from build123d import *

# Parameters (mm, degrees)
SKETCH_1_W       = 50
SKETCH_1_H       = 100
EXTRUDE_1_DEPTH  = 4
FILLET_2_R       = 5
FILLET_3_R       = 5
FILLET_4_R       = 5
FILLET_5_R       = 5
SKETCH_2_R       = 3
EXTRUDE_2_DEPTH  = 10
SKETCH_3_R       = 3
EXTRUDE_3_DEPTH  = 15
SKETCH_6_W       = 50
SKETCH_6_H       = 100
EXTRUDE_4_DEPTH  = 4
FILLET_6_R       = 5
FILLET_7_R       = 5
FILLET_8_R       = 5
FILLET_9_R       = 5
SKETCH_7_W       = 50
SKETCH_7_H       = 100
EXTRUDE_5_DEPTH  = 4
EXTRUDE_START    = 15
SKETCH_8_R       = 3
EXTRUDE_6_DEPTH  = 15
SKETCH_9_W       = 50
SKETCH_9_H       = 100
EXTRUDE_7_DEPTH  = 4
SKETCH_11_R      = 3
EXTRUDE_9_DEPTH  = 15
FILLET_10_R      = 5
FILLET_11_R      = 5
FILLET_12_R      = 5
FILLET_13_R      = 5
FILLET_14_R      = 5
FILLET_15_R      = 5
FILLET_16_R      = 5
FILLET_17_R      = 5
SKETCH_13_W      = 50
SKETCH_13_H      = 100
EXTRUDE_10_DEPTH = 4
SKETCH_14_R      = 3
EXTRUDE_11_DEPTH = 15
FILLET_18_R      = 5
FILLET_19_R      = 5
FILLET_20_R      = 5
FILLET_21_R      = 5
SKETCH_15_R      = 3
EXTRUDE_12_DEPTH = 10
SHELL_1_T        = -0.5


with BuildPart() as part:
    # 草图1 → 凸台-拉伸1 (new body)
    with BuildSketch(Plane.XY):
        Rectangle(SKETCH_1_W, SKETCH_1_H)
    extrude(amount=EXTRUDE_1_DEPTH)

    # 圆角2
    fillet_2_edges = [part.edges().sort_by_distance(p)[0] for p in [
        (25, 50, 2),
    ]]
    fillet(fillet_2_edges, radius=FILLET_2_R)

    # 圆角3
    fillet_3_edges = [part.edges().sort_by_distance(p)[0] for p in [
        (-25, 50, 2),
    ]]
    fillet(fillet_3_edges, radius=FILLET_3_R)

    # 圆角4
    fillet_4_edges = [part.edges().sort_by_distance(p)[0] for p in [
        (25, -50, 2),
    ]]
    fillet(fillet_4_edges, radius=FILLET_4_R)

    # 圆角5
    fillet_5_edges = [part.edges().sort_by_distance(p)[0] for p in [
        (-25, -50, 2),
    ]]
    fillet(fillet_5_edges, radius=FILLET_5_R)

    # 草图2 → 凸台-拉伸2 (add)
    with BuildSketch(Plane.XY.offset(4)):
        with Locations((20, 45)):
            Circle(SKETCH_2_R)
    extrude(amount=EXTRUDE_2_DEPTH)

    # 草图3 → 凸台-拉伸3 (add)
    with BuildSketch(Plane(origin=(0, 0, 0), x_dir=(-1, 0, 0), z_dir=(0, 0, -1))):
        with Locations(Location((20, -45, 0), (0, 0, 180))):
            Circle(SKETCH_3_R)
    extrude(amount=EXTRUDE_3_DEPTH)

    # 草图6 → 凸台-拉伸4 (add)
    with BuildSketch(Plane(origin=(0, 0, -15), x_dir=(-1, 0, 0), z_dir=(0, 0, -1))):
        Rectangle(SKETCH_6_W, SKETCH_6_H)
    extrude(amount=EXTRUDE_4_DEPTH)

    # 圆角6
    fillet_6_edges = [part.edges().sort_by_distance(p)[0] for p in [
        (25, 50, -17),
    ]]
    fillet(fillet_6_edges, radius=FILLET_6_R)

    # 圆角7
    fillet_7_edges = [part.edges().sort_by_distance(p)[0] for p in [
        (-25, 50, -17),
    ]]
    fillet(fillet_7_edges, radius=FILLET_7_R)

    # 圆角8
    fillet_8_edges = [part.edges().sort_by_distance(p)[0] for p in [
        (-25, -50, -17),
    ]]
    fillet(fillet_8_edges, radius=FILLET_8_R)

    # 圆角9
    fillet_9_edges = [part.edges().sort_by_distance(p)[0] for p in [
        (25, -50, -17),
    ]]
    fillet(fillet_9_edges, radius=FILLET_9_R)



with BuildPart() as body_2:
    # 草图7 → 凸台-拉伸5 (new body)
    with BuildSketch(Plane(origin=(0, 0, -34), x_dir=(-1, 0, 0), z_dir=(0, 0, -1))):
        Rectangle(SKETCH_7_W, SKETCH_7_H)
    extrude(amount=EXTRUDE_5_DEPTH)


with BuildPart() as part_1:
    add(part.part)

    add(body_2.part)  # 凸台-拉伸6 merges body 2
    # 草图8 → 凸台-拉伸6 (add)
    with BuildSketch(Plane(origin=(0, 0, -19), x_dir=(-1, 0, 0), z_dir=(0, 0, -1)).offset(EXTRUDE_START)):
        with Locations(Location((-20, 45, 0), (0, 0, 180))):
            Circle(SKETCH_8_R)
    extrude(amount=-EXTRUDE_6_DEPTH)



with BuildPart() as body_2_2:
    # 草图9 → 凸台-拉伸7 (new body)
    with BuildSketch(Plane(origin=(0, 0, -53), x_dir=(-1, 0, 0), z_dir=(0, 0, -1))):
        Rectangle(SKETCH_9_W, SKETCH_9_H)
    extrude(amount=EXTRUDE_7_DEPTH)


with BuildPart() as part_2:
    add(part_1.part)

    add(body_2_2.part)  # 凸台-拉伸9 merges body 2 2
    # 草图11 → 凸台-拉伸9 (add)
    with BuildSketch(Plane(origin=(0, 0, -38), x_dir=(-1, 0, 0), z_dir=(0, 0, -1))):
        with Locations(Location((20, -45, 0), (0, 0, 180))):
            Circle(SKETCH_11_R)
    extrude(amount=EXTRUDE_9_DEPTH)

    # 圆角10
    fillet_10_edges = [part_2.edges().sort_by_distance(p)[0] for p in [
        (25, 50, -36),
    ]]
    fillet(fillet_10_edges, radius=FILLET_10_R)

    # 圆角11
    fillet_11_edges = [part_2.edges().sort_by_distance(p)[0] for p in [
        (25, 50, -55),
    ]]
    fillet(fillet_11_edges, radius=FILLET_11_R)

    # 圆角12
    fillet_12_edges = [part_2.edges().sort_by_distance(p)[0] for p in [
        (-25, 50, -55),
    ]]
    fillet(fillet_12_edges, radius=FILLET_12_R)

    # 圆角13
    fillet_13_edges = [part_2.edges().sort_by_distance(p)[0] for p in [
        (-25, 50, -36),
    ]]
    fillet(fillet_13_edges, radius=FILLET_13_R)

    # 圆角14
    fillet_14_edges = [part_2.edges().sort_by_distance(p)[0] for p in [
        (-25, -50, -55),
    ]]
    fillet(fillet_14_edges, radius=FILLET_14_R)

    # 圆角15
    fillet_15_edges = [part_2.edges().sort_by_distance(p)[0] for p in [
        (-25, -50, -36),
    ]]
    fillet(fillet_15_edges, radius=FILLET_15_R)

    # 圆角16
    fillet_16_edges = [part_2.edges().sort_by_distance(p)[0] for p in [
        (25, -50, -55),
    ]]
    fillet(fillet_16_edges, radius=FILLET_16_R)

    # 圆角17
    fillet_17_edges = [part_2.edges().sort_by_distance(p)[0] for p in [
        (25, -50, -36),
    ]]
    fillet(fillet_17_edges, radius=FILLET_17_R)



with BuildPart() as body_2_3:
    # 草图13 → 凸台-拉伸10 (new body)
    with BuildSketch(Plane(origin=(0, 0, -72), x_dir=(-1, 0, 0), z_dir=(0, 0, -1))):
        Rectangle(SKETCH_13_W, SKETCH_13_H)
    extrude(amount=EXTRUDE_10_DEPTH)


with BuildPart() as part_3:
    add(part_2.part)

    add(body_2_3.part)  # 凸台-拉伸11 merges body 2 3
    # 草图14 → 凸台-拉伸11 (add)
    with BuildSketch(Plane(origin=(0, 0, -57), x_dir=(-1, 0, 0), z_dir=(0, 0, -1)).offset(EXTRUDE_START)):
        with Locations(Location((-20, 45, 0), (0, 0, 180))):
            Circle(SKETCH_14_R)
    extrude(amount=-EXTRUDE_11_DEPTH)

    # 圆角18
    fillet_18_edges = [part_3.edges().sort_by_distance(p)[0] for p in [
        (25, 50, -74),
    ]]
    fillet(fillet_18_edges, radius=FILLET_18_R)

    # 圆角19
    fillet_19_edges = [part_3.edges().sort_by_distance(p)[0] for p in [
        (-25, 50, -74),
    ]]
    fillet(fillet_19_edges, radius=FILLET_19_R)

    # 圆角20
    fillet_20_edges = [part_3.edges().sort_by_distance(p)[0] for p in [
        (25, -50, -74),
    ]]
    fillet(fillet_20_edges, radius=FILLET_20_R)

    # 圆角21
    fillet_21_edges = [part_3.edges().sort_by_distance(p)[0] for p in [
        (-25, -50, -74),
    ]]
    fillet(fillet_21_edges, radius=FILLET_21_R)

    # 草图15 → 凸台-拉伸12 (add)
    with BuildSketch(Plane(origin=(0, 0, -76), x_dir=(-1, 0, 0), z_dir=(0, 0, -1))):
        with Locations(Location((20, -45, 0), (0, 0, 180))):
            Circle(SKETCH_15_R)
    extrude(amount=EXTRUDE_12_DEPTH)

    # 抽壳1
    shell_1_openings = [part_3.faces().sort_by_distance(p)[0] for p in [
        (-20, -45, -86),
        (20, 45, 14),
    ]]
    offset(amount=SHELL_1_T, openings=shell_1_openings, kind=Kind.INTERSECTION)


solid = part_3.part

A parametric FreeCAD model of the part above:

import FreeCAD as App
import Part
import Sketcher
Q = App.Units.Quantity


def edges_at(feature, points):
    """Names of the edges that pass closest to the given points."""
    edges = feature.Shape.Edges
    near = lambda p: min(range(len(edges)), key=lambda i: edges[i].distToShape(Part.Vertex(*p))[0])
    return sorted({f"Edge{near(p) + 1}" for p in points})


def faces_at(feature, points):
    """Names of the faces that lie closest to the given points."""
    faces = feature.Shape.Faces
    near = lambda p: min(range(len(faces)), key=lambda i: faces[i].distToShape(Part.Vertex(*p))[0])
    return sorted({f"Face{near(p) + 1}" for p in points})

doc = App.newDocument("Part")
body = doc.addObject("PartDesign::Body", "Body")

sketch1 = body.newObject("Sketcher::SketchObject", "Sketch")
sketch1.AttachmentSupport = (doc.getObject("XY_Plane"), [""])
sketch1.MapMode = "FlatFace"
sketch1.addGeometry([
    Part.LineSegment(App.Vector(-25, 50, 0), App.Vector(-25, -50, 0)),
    Part.LineSegment(App.Vector(-25, -50, 0), App.Vector(25, -50, 0)),
    Part.LineSegment(App.Vector(25, -50, 0), App.Vector(25, 50, 0)),
    Part.LineSegment(App.Vector(25, 50, 0), App.Vector(-25, 50, 0)),
], False)
sketch1.addConstraint([
    Sketcher.Constraint("Coincident", 0, 2, 1, 1),
    Sketcher.Constraint("Coincident", 1, 2, 2, 1),
    Sketcher.Constraint("Coincident", 2, 2, 3, 1),
    Sketcher.Constraint("Coincident", 3, 2, 0, 1),
    Sketcher.Constraint("Vertical", 0),
    Sketcher.Constraint("Horizontal", 1),
    Sketcher.Constraint("Vertical", 2),
    Sketcher.Constraint("Horizontal", 3),
    Sketcher.Constraint("Symmetric", 0, 2, 2, 2, -1, 1),
    Sketcher.Constraint("DistanceX", 1, 1, 1, 2, Q("50 mm")),
    Sketcher.Constraint("DistanceY", 0, 2, 0, 1, Q("100 mm")),
])
pad1 = body.newObject("PartDesign::Pad", "Pad")
pad1.Profile = sketch1
pad1.Length = 4
doc.recompute()

fillet = body.newObject("PartDesign::Fillet", "Fillet")
fillet.Base = (pad1, edges_at(pad1, [(25, 50, 2)]))
fillet.Radius = 5
doc.recompute()

fillet2 = body.newObject("PartDesign::Fillet", "Fillet001")
fillet2.Base = (fillet, edges_at(fillet, [(-25, 50, 2)]))
fillet2.Radius = 5
doc.recompute()

fillet3 = body.newObject("PartDesign::Fillet", "Fillet002")
fillet3.Base = (fillet2, edges_at(fillet2, [(25, -50, 2)]))
fillet3.Radius = 5
doc.recompute()

fillet4 = body.newObject("PartDesign::Fillet", "Fillet003")
fillet4.Base = (fillet3, edges_at(fillet3, [(-25, -50, 2)]))
fillet4.Radius = 5

sketch2 = body.newObject("Sketcher::SketchObject", "Sketch001")
sketch2.AttachmentSupport = (doc.getObject("XY_Plane"), [""])
sketch2.MapMode = "FlatFace"
sketch2.AttachmentOffset = App.Placement(App.Vector(0, 0, 4), App.Rotation())
sketch2.addGeometry(Part.Circle(App.Vector(20, 45, 0), App.Vector(0, 0, 1), 3), False)
sketch2.addConstraint([
    Sketcher.Constraint("Diameter", 0, Q("6 mm")),
    Sketcher.Constraint("DistanceX", -1, 1, 0, 3, Q("20 mm")),
    Sketcher.Constraint("DistanceY", -1, 1, 0, 3, Q("45 mm")),
])
pad2 = body.newObject("PartDesign::Pad", "Pad001")
pad2.Profile = sketch2
pad2.Length = 10

sketch3 = body.newObject("Sketcher::SketchObject", "Sketch002")
sketch3.AttachmentSupport = (doc.getObject("XY_Plane"), [""])
sketch3.MapMode = "FlatFace"
sketch3.addGeometry(Part.Circle(App.Vector(-20, -45, 0), App.Vector(0, 0, 1), 3), False)
sketch3.addConstraint([
    Sketcher.Constraint("Diameter", 0, Q("6 mm")),
    Sketcher.Constraint("DistanceX", 0, 3, -1, 1, Q("20 mm")),
    Sketcher.Constraint("DistanceY", 0, 3, -1, 1, Q("45 mm")),
])
pad3 = body.newObject("PartDesign::Pad", "Pad002")
pad3.Profile = sketch3
pad3.Length = 15
pad3.Reversed = True

sketch4 = body.newObject("Sketcher::SketchObject", "Sketch003")
sketch4.AttachmentSupport = (doc.getObject("XY_Plane"), [""])
sketch4.MapMode = "FlatFace"
sketch4.AttachmentOffset = App.Placement(App.Vector(0, 0, -15), App.Rotation())
sketch4.addGeometry([
    Part.LineSegment(App.Vector(25, 50, 0), App.Vector(25, -50, 0)),
    Part.LineSegment(App.Vector(25, -50, 0), App.Vector(-25, -50, 0)),
    Part.LineSegment(App.Vector(-25, -50, 0), App.Vector(-25, 50, 0)),
    Part.LineSegment(App.Vector(-25, 50, 0), App.Vector(25, 50, 0)),
], False)
sketch4.addConstraint([
    Sketcher.Constraint("Coincident", 0, 2, 1, 1),
    Sketcher.Constraint("Coincident", 1, 2, 2, 1),
    Sketcher.Constraint("Coincident", 2, 2, 3, 1),
    Sketcher.Constraint("Coincident", 3, 2, 0, 1),
    Sketcher.Constraint("Vertical", 0),
    Sketcher.Constraint("Horizontal", 1),
    Sketcher.Constraint("Vertical", 2),
    Sketcher.Constraint("Horizontal", 3),
    Sketcher.Constraint("Symmetric", 0, 2, 2, 2, -1, 1),
    Sketcher.Constraint("DistanceX", 1, 2, 1, 1, Q("50 mm")),
    Sketcher.Constraint("DistanceY", 0, 2, 0, 1, Q("100 mm")),
])
pad4 = body.newObject("PartDesign::Pad", "Pad003")
pad4.Profile = sketch4
pad4.Length = 4
pad4.Reversed = True
doc.recompute()

fillet5 = body.newObject("PartDesign::Fillet", "Fillet004")
fillet5.Base = (pad4, edges_at(pad4, [(25, 50, -17)]))
fillet5.Radius = 5
doc.recompute()

fillet6 = body.newObject("PartDesign::Fillet", "Fillet005")
fillet6.Base = (fillet5, edges_at(fillet5, [(-25, 50, -17)]))
fillet6.Radius = 5
doc.recompute()

fillet7 = body.newObject("PartDesign::Fillet", "Fillet006")
fillet7.Base = (fillet6, edges_at(fillet6, [(-25, -50, -17)]))
fillet7.Radius = 5
doc.recompute()

fillet8 = body.newObject("PartDesign::Fillet", "Fillet007")
fillet8.Base = (fillet7, edges_at(fillet7, [(25, -50, -17)]))
fillet8.Radius = 5
body2 = doc.addObject("PartDesign::Body", "Body001")

sketch5 = body2.newObject("Sketcher::SketchObject", "Sketch004")
sketch5.AttachmentSupport = (doc.getObject("XY_Plane001"), [""])
sketch5.MapMode = "FlatFace"
sketch5.AttachmentOffset = App.Placement(App.Vector(0, 0, -34), App.Rotation())
sketch5.addGeometry([
    Part.LineSegment(App.Vector(25, 50, 0), App.Vector(25, -50, 0)),
    Part.LineSegment(App.Vector(25, -50, 0), App.Vector(-25, -50, 0)),
    Part.LineSegment(App.Vector(-25, -50, 0), App.Vector(-25, 50, 0)),
    Part.LineSegment(App.Vector(-25, 50, 0), App.Vector(25, 50, 0)),
], False)
sketch5.addConstraint([
    Sketcher.Constraint("Coincident", 0, 2, 1, 1),
    Sketcher.Constraint("Coincident", 1, 2, 2, 1),
    Sketcher.Constraint("Coincident", 2, 2, 3, 1),
    Sketcher.Constraint("Coincident", 3, 2, 0, 1),
    Sketcher.Constraint("Vertical", 0),
    Sketcher.Constraint("Horizontal", 1),
    Sketcher.Constraint("Vertical", 2),
    Sketcher.Constraint("Horizontal", 3),
    Sketcher.Constraint("Symmetric", 0, 2, 2, 2, -1, 1),
    Sketcher.Constraint("DistanceX", 1, 2, 1, 1, Q("50 mm")),
    Sketcher.Constraint("DistanceY", 0, 2, 0, 1, Q("100 mm")),
])
pad5 = body2.newObject("PartDesign::Pad", "Pad004")
pad5.Profile = sketch5
pad5.Length = 4
pad5.Reversed = True
body.AllowCompound = True
doc.recompute()

boolean = body.newObject("PartDesign::Boolean", "Boolean")
boolean.Type = "Fuse"
boolean.addObjects([body2])

sketch6 = body.newObject("Sketcher::SketchObject", "Sketch005")
sketch6.AttachmentSupport = (doc.getObject("XY_Plane"), [""])
sketch6.MapMode = "FlatFace"
sketch6.AttachmentOffset = App.Placement(App.Vector(0, 0, -34), App.Rotation())
sketch6.addGeometry(Part.Circle(App.Vector(20, 45, 0), App.Vector(0, 0, 1), 3), False)
sketch6.addConstraint([
    Sketcher.Constraint("Diameter", 0, Q("6 mm")),
    Sketcher.Constraint("DistanceX", -1, 1, 0, 3, Q("20 mm")),
    Sketcher.Constraint("DistanceY", -1, 1, 0, 3, Q("45 mm")),
])
pad6 = body.newObject("PartDesign::Pad", "Pad005")
pad6.Profile = sketch6
pad6.Length = 15
body3 = doc.addObject("PartDesign::Body", "Body002")

sketch7 = body3.newObject("Sketcher::SketchObject", "Sketch006")
sketch7.AttachmentSupport = (doc.getObject("XY_Plane002"), [""])
sketch7.MapMode = "FlatFace"
sketch7.AttachmentOffset = App.Placement(App.Vector(0, 0, -53), App.Rotation())
sketch7.addGeometry([
    Part.LineSegment(App.Vector(25, 50, 0), App.Vector(25, -50, 0)),
    Part.LineSegment(App.Vector(25, -50, 0), App.Vector(-25, -50, 0)),
    Part.LineSegment(App.Vector(-25, -50, 0), App.Vector(-25, 50, 0)),
    Part.LineSegment(App.Vector(-25, 50, 0), App.Vector(25, 50, 0)),
], False)
sketch7.addConstraint([
    Sketcher.Constraint("Coincident", 0, 2, 1, 1),
    Sketcher.Constraint("Coincident", 1, 2, 2, 1),
    Sketcher.Constraint("Coincident", 2, 2, 3, 1),
    Sketcher.Constraint("Coincident", 3, 2, 0, 1),
    Sketcher.Constraint("Vertical", 0),
    Sketcher.Constraint("Horizontal", 1),
    Sketcher.Constraint("Vertical", 2),
    Sketcher.Constraint("Horizontal", 3),
    Sketcher.Constraint("Symmetric", 0, 2, 2, 2, -1, 1),
    Sketcher.Constraint("DistanceX", 1, 2, 1, 1, Q("50 mm")),
    Sketcher.Constraint("DistanceY", 0, 2, 0, 1, Q("100 mm")),
])
pad7 = body3.newObject("PartDesign::Pad", "Pad006")
pad7.Profile = sketch7
pad7.Length = 4
pad7.Reversed = True
body.AllowCompound = True
doc.recompute()

boolean2 = body.newObject("PartDesign::Boolean", "Boolean001")
boolean2.Type = "Fuse"
boolean2.addObjects([body3])

sketch8 = body.newObject("Sketcher::SketchObject", "Sketch007")
sketch8.AttachmentSupport = (doc.getObject("XY_Plane"), [""])
sketch8.MapMode = "FlatFace"
sketch8.AttachmentOffset = App.Placement(App.Vector(0, 0, -38), App.Rotation())
sketch8.addGeometry(Part.Circle(App.Vector(-20, -45, 0), App.Vector(0, 0, 1), 3), False)
sketch8.addConstraint([
    Sketcher.Constraint("Diameter", 0, Q("6 mm")),
    Sketcher.Constraint("DistanceX", 0, 3, -1, 1, Q("20 mm")),
    Sketcher.Constraint("DistanceY", 0, 3, -1, 1, Q("45 mm")),
])
pad8 = body.newObject("PartDesign::Pad", "Pad007")
pad8.Profile = sketch8
pad8.Length = 15
pad8.Reversed = True
doc.recompute()

fillet9 = body.newObject("PartDesign::Fillet", "Fillet008")
fillet9.Base = (pad8, edges_at(pad8, [(25, 50, -36)]))
fillet9.Radius = 5
doc.recompute()

fillet10 = body.newObject("PartDesign::Fillet", "Fillet009")
fillet10.Base = (fillet9, edges_at(fillet9, [(25, 50, -55)]))
fillet10.Radius = 5
doc.recompute()

fillet11 = body.newObject("PartDesign::Fillet", "Fillet010")
fillet11.Base = (fillet10, edges_at(fillet10, [(-25, 50, -55)]))
fillet11.Radius = 5
doc.recompute()

fillet12 = body.newObject("PartDesign::Fillet", "Fillet011")
fillet12.Base = (fillet11, edges_at(fillet11, [(-25, 50, -36)]))
fillet12.Radius = 5
doc.recompute()

fillet13 = body.newObject("PartDesign::Fillet", "Fillet012")
fillet13.Base = (fillet12, edges_at(fillet12, [(-25, -50, -55)]))
fillet13.Radius = 5
doc.recompute()

fillet14 = body.newObject("PartDesign::Fillet", "Fillet013")
fillet14.Base = (fillet13, edges_at(fillet13, [(-25, -50, -36)]))
fillet14.Radius = 5
doc.recompute()

fillet15 = body.newObject("PartDesign::Fillet", "Fillet014")
fillet15.Base = (fillet14, edges_at(fillet14, [(25, -50, -55)]))
fillet15.Radius = 5
doc.recompute()

fillet16 = body.newObject("PartDesign::Fillet", "Fillet015")
fillet16.Base = (fillet15, edges_at(fillet15, [(25, -50, -36)]))
fillet16.Radius = 5
body4 = doc.addObject("PartDesign::Body", "Body003")

sketch9 = body4.newObject("Sketcher::SketchObject", "Sketch008")
sketch9.AttachmentSupport = (doc.getObject("XY_Plane003"), [""])
sketch9.MapMode = "FlatFace"
sketch9.AttachmentOffset = App.Placement(App.Vector(0, 0, -72), App.Rotation())
sketch9.addGeometry([
    Part.LineSegment(App.Vector(25, 50, 0), App.Vector(25, -50, 0)),
    Part.LineSegment(App.Vector(25, -50, 0), App.Vector(-25, -50, 0)),
    Part.LineSegment(App.Vector(-25, -50, 0), App.Vector(-25, 50, 0)),
    Part.LineSegment(App.Vector(-25, 50, 0), App.Vector(25, 50, 0)),
], False)
sketch9.addConstraint([
    Sketcher.Constraint("Coincident", 0, 2, 1, 1),
    Sketcher.Constraint("Coincident", 1, 2, 2, 1),
    Sketcher.Constraint("Coincident", 2, 2, 3, 1),
    Sketcher.Constraint("Coincident", 3, 2, 0, 1),
    Sketcher.Constraint("Vertical", 0),
    Sketcher.Constraint("Horizontal", 1),
    Sketcher.Constraint("Vertical", 2),
    Sketcher.Constraint("Horizontal", 3),
    Sketcher.Constraint("Symmetric", 0, 2, 2, 2, -1, 1),
    Sketcher.Constraint("DistanceX", 1, 2, 1, 1, Q("50 mm")),
    Sketcher.Constraint("DistanceY", 0, 2, 0, 1, Q("100 mm")),
])
pad9 = body4.newObject("PartDesign::Pad", "Pad008")
pad9.Profile = sketch9
pad9.Length = 4
pad9.Reversed = True
body.AllowCompound = True
doc.recompute()

boolean3 = body.newObject("PartDesign::Boolean", "Boolean002")
boolean3.Type = "Fuse"
boolean3.addObjects([body4])

sketch10 = body.newObject("Sketcher::SketchObject", "Sketch009")
sketch10.AttachmentSupport = (doc.getObject("XY_Plane"), [""])
sketch10.MapMode = "FlatFace"
sketch10.AttachmentOffset = App.Placement(App.Vector(0, 0, -72), App.Rotation())
sketch10.addGeometry(Part.Circle(App.Vector(20, 45, 0), App.Vector(0, 0, 1), 3), False)
sketch10.addConstraint([
    Sketcher.Constraint("Diameter", 0, Q("6 mm")),
    Sketcher.Constraint("DistanceX", -1, 1, 0, 3, Q("20 mm")),
    Sketcher.Constraint("DistanceY", -1, 1, 0, 3, Q("45 mm")),
])
pad10 = body.newObject("PartDesign::Pad", "Pad009")
pad10.Profile = sketch10
pad10.Length = 15
doc.recompute()

fillet17 = body.newObject("PartDesign::Fillet", "Fillet016")
fillet17.Base = (pad10, edges_at(pad10, [(25, 50, -74)]))
fillet17.Radius = 5
doc.recompute()

fillet18 = body.newObject("PartDesign::Fillet", "Fillet017")
fillet18.Base = (fillet17, edges_at(fillet17, [(-25, 50, -74)]))
fillet18.Radius = 5
doc.recompute()

fillet19 = body.newObject("PartDesign::Fillet", "Fillet018")
fillet19.Base = (fillet18, edges_at(fillet18, [(25, -50, -74)]))
fillet19.Radius = 5
doc.recompute()

fillet20 = body.newObject("PartDesign::Fillet", "Fillet019")
fillet20.Base = (fillet19, edges_at(fillet19, [(-25, -50, -74)]))
fillet20.Radius = 5

sketch11 = body.newObject("Sketcher::SketchObject", "Sketch010")
sketch11.AttachmentSupport = (doc.getObject("XY_Plane"), [""])
sketch11.MapMode = "FlatFace"
sketch11.AttachmentOffset = App.Placement(App.Vector(0, 0, -76), App.Rotation())
sketch11.addGeometry(Part.Circle(App.Vector(-20, -45, 0), App.Vector(0, 0, 1), 3), False)
sketch11.addConstraint([
    Sketcher.Constraint("Diameter", 0, Q("6 mm")),
    Sketcher.Constraint("DistanceX", 0, 3, -1, 1, Q("20 mm")),
    Sketcher.Constraint("DistanceY", 0, 3, -1, 1, Q("45 mm")),
])
pad11 = body.newObject("PartDesign::Pad", "Pad010")
pad11.Profile = sketch11
pad11.Length = 10
pad11.Reversed = True
doc.recompute()

thickness = body.newObject("PartDesign::Thickness", "Thickness")
thickness.Base = (pad11, faces_at(pad11, [(-20, -45, -86), (20, 45, 14)]))
thickness.Value = 0.5
thickness.Reversed = True
thickness.Join = "Intersection"

doc.recompute()
